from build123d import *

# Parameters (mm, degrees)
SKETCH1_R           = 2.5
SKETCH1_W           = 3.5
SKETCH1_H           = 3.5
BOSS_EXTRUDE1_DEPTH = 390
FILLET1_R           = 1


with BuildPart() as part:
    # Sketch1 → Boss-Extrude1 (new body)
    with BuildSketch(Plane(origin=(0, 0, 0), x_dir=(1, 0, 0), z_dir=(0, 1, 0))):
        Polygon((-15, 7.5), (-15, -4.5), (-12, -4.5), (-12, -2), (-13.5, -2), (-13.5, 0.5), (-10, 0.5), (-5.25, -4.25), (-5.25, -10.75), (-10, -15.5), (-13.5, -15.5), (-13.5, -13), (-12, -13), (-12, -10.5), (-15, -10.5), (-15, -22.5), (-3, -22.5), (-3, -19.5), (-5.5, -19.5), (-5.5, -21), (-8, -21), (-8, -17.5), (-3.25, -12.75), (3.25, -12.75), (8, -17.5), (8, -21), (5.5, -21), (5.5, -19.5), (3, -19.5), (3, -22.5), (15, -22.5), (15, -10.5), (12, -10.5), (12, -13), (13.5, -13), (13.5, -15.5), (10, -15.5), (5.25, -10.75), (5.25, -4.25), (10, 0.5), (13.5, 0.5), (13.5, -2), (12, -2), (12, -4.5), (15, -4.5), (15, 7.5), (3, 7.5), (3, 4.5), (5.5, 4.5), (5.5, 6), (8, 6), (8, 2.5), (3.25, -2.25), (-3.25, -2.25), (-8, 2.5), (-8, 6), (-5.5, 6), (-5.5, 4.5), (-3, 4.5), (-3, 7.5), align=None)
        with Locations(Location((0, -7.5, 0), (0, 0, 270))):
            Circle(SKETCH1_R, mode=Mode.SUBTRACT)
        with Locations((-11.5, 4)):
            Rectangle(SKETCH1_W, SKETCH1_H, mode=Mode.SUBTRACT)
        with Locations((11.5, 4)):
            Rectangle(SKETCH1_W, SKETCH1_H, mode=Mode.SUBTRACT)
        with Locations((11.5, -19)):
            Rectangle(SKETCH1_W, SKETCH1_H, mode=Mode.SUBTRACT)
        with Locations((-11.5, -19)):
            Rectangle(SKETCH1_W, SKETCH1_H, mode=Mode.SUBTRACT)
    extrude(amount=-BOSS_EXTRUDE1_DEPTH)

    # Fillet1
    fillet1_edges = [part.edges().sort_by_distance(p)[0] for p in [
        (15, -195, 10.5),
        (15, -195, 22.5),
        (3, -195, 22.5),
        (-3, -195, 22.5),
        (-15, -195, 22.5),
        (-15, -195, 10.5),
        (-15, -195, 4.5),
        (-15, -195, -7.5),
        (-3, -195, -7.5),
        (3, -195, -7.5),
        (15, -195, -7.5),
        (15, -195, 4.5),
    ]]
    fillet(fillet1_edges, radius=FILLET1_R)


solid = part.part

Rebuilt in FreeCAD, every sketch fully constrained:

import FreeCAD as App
import Part
import Sketcher


def edges_at(feature, points):
    """Names of the edges that pass closest to the given points."""
    edges = feature.Shape.Edges
    near = lambda p: min(range(len(edges)), key=lambda i: edges[i].distToShape(Part.Vertex(*p))[0])
    return sorted({f"Edge{near(p) + 1}" for p in points})

doc = App.newDocument("Part")
params = doc.addObject("Spreadsheet::Sheet", "Params")
for row, (alias, value) in enumerate([
    ("sketch1_diameter", "5 mm"),
    ("sketch1_width", "3 mm"),
    ("sketch1_width2", "12 mm"),
    ("sketch1_width3", "1.5 mm"),
    ("sketch1_width4", "3.5 mm"),
    ("pad1_length", "390 mm"),
    ("fillet_radius", "1 mm"),
], start=1):
    params.set(f"A{row}", alias)
    params.set(f"B{row}", "=" + value)
    params.setAlias(f"B{row}", alias)

body = doc.addObject("PartDesign::Body", "Body")

# Sketch on XZ plane
sketch1 = body.newObject("Sketcher::SketchObject", "Sketch")
sketch1.AttachmentSupport = (doc.getObject("XZ_Plane"), [""])
sketch1.MapMode = "FlatFace"
sketch1.addGeometry(Part.LineSegment(App.Vector(-15, -7.5, 0), App.Vector(-15, 4.5, 0)), False)
sketch1.addGeometry(Part.LineSegment(App.Vector(-15, 4.5, 0), App.Vector(-12, 4.5, 0)), False)
sketch1.addGeometry(Part.LineSegment(App.Vector(-12, 4.5, 0), App.Vector(-12, 2, 0)), False)
sketch1.addGeometry(Part.LineSegment(App.Vector(-12, 2, 0), App.Vector(-13.5, 2, 0)), False)
sketch1.addGeometry(Part.LineSegment(App.Vector(-13.5, 2, 0), App.Vector(-13.5, -0.5, 0)), False)
sketch1.addGeometry(Part.LineSegment(App.Vector(-13.5, -0.5, 0), App.Vector(-10, -0.5, 0)), False)
sketch1.addGeometry(Part.LineSegment(App.Vector(-10, -0.5, 0), App.Vector(-5.25, 4.25, 0)), False)
sketch1.addGeometry(Part.LineSegment(App.Vector(-5.25, 4.25, 0), App.Vector(-5.25, 10.75, 0)), False)
sketch1.addGeometry(Part.LineSegment(App.Vector(-5.25, 10.75, 0), App.Vector(-10, 15.5, 0)), False)
sketch1.addGeometry(Part.LineSegment(App.Vector(-10, 15.5, 0), App.Vector(-13.5, 15.5, 0)), False)
sketch1.addGeometry(Part.LineSegment(App.Vector(-13.5, 15.5, 0), App.Vector(-13.5, 13, 0)), False)
sketch1.addGeometry(Part.LineSegment(App.Vector(-13.5, 13, 0), App.Vector(-12, 13, 0)), False)
sketch1.addGeometry(Part.LineSegment(App.Vector(-12, 13, 0), App.Vector(-12, 10.5, 0)), False)
sketch1.addGeometry(Part.LineSegment(App.Vector(-12, 10.5, 0), App.Vector(-15, 10.5, 0)), False)
sketch1.addGeometry(Part.LineSegment(App.Vector(-15, 10.5, 0), App.Vector(-15, 22.5, 0)), False)
sketch1.addGeometry(Part.LineSegment(App.Vector(-15, 22.5, 0), App.Vector(-3, 22.5, 0)), False)
sketch1.addGeometry(Part.LineSegment(App.Vector(-3, 22.5, 0), App.Vector(-3, 19.5, 0)), False)
sketch1.addGeometry(Part.LineSegment(App.Vector(-3, 19.5, 0), App.Vector(-5.5, 19.5, 0)), False)
sketch1.addGeometry(Part.LineSegment(App.Vector(-5.5, 19.5, 0), App.Vector(-5.5, 21, 0)), False)
sketch1.addGeometry(Part.LineSegment(App.Vector(-5.5, 21, 0), App.Vector(-8, 21, 0)), False)
sketch1.addGeometry(Part.LineSegment(App.Vector(-8, 21, 0), App.Vector(-8, 17.5, 0)), False)
sketch1.addGeometry(Part.LineSegment(App.Vector(-8, 17.5, 0), App.Vector(-3.25, 12.75, 0)), False)
sketch1.addGeometry(Part.LineSegment(App.Vector(-3.25, 12.75, 0), App.Vector(3.25, 12.75, 0)), False)
sketch1.addGeometry(Part.LineSegment(App.Vector(3.25, 12.75, 0), App.Vector(8, 17.5, 0)), False)
sketch1.addGeometry(Part.LineSegment(App.Vector(8, 17.5, 0), App.Vector(8, 21, 0)), False)
sketch1.addGeometry(Part.LineSegment(App.Vector(8, 21, 0), App.Vector(5.5, 21, 0)), False)
sketch1.addGeometry(Part.LineSegment(App.Vector(5.5, 21, 0), App.Vector(5.5, 19.5, 0)), False)
sketch1.addGeometry(Part.LineSegment(App.Vector(5.5, 19.5, 0), App.Vector(3, 19.5, 0)), False)
sketch1.addGeometry(Part.LineSegment(App.Vector(3, 19.5, 0), App.Vector(3, 22.5, 0)), False)
sketch1.addGeometry(Part.LineSegment(App.Vector(3, 22.5, 0), App.Vector(15, 22.5, 0)), False)
sketch1.addGeometry(Part.LineSegment(App.Vector(15, 22.5, 0), App.Vector(15, 10.5, 0)), False)
sketch1.addGeometry(Part.LineSegment(App.Vector(15, 10.5, 0), App.Vector(12, 10.5, 0)), False)
sketch1.addGeometry(Part.LineSegment(App.Vector(12, 10.5, 0), App.Vector(12, 13, 0)), False)
sketch1.addGeometry(Part.LineSegment(App.Vector(12, 13, 0), App.Vector(13.5, 13, 0)), False)
sketch1.addGeometry(Part.LineSegment(App.Vector(13.5, 13, 0), App.Vector(13.5, 15.5, 0)), False)
sketch1.addGeometry(Part.LineSegment(App.Vector(13.5, 15.5, 0), App.Vector(10, 15.5, 0)), False)
sketch1.addGeometry(Part.LineSegment(App.Vector(10, 15.5, 0), App.Vector(5.25, 10.75, 0)), False)
sketch1.addGeometry(Part.LineSegment(App.Vector(5.25, 10.75, 0), App.Vector(5.25, 4.25, 0)), False)
sketch1.addGeometry(Part.LineSegment(App.Vector(5.25, 4.25, 0), App.Vector(10, -0.5, 0)), False)
sketch1.addGeometry(Part.LineSegment(App.Vector(10, -0.5, 0), App.Vector(13.5, -0.5, 0)), False)
sketch1.addGeometry(Part.LineSegment(App.Vector(13.5, -0.5, 0), App.Vector(13.5, 2, 0)), False)
sketch1.addGeometry(Part.LineSegment(App.Vector(13.5, 2, 0), App.Vector(12, 2, 0)), False)
sketch1.addGeometry(Part.LineSegment(App.Vector(12, 2, 0), App.Vector(12, 4.5, 0)), False)
sketch1.addGeometry(Part.LineSegment(App.Vector(12, 4.5, 0), App.Vector(15, 4.5, 0)), False)
sketch1.addGeometry(Part.LineSegment(App.Vector(15, 4.5, 0), App.Vector(15, -7.5, 0)), False)
sketch1.addGeometry(Part.LineSegment(App.Vector(15, -7.5, 0), App.Vector(3, -7.5, 0)), False)
sketch1.addGeometry(Part.LineSegment(App.Vector(3, -7.5, 0), App.Vector(3, -4.5, 0)), False)
sketch1.addGeometry(Part.LineSegment(App.Vector(3, -4.5, 0), App.Vector(5.5, -4.5, 0)), False)
sketch1.addGeometry(Part.LineSegment(App.Vector(5.5, -4.5, 0), App.Vector(5.5, -6, 0)), False)
sketch1.addGeometry(Part.LineSegment(App.Vector(5.5, -6, 0), App.Vector(8, -6, 0)), False)
sketch1.addGeometry(Part.LineSegment(App.Vector(8, -6, 0), App.Vector(8, -2.5, 0)), False)
sketch1.addGeometry(Part.LineSegment(App.Vector(8, -2.5, 0), App.Vector(3.25, 2.25, 0)), False)
sketch1.addGeometry(Part.LineSegment(App.Vector(3.25, 2.25, 0), App.Vector(-3.25, 2.25, 0)), False)
sketch1.addGeometry(Part.LineSegment(App.Vector(-3.25, 2.25, 0), App.Vector(-8, -2.5, 0)), False)
sketch1.addGeometry(Part.LineSegment(App.Vector(-8, -2.5, 0), App.Vector(-8, -6, 0)), False)
sketch1.addGeometry(Part.LineSegment(App.Vector(-8, -6, 0), App.Vector(-5.5, -6, 0)), False)
sketch1.addGeometry(Part.LineSegment(App.Vector(-5.5, -6, 0), App.Vector(-5.5, -4.5, 0)), False)
sketch1.addGeometry(Part.LineSegment(App.Vector(-5.5, -4.5, 0), App.Vector(-3, -4.5, 0)), False)
sketch1.addGeometry(Part.LineSegment(App.Vector(-3, -4.5, 0), App.Vector(-3, -7.5, 0)), False)
sketch1.addGeometry(Part.LineSegment(App.Vector(-3, -7.5, 0), App.Vector(-15, -7.5, 0)), False)
sketch1.addGeometry(Part.LineSegment(App.Vector(-9.75, 20.75, 0), App.Vector(-13.25, 20.75, 0)), False)
sketch1.addGeometry(Part.LineSegment(App.Vector(-13.25, 20.75, 0), App.Vector(-13.25, 17.25, 0)), False)
sketch1.addGeometry(Part.LineSegment(App.Vector(-13.25, 17.25, 0), App.Vector(-9.75, 17.25, 0)), False)
sketch1.addGeometry(Part.LineSegment(App.Vector(-9.75, 17.25, 0), App.Vector(-9.75, 20.75, 0)), False)
sketch1.addGeometry(Part.LineSegment(App.Vector(13.25, 20.75, 0), App.Vector(9.75, 20.75, 0)), False)
sketch1.addGeometry(Part.LineSegment(App.Vector(9.75, 20.75, 0), App.Vector(9.75, 17.25, 0)), False)
sketch1.addGeometry(Part.LineSegment(App.Vector(9.75, 17.25, 0), App.Vector(13.25, 17.25, 0)), False)
sketch1.addGeometry(Part.LineSegment(App.Vector(13.25, 17.25, 0), App.Vector(13.25, 20.75, 0)), False)
sketch1.addGeometry(Part.LineSegment(App.Vector(-9.75, -2.25, 0), App.Vector(-13.25, -2.25, 0)), False)
sketch1.addGeometry(Part.LineSegment(App.Vector(-13.25, -2.25, 0), App.Vector(-13.25, -5.75, 0)), False)
sketch1.addGeometry(Part.LineSegment(App.Vector(-13.25, -5.75, 0), App.Vector(-9.75, -5.75, 0)), False)
sketch1.addGeometry(Part.LineSegment(App.Vector(-9.75, -5.75, 0), App.Vector(-9.75, -2.25, 0)), False)
sketch1.addGeometry(Part.Circle(App.Vector(0, 7.5, 0), App.Vector(0, 0, 1), 2.5), False)
sketch1.addGeometry(Part.LineSegment(App.Vector(13.25, -2.25, 0), App.Vector(9.75, -2.25, 0)), False)
sketch1.addGeometry(Part.LineSegment(App.Vector(9.75, -2.25, 0), App.Vector(9.75, -5.75, 0)), False)
sketch1.addGeometry(Part.LineSegment(App.Vector(9.75, -5.75, 0), App.Vector(13.25, -5.75, 0)), False)
sketch1.addGeometry(Part.LineSegment(App.Vector(13.25, -5.75, 0), App.Vector(13.25, -2.25, 0)), False)
sketch1.addConstraint(Sketcher.Constraint("Coincident", 0, 2, 1, 1))
sketch1.addConstraint(Sketcher.Constraint("Coincident", 1, 2, 2, 1))
sketch1.addConstraint(Sketcher.Constraint("Coincident", 2, 2, 3, 1))
sketch1.addConstraint(Sketcher.Constraint("Coincident", 3, 2, 4, 1))
sketch1.addConstraint(Sketcher.Constraint("Coincident", 4, 2, 5, 1))
sketch1.addConstraint(Sketcher.Constraint("Coincident", 5, 2, 6, 1))
sketch1.addConstraint(Sketcher.Constraint("Coincident", 6, 2, 7, 1))
sketch1.addConstraint(Sketcher.Constraint("Coincident", 7, 2, 8, 1))
sketch1.addConstraint(Sketcher.Constraint("Coincident", 8, 2, 9, 1))
sketch1.addConstraint(Sketcher.Constraint("Coincident", 9, 2, 10, 1))
sketch1.addConstraint(Sketcher.Constraint("Coincident", 10, 2, 11, 1))
sketch1.addConstraint(Sketcher.Constraint("Coincident", 11, 2, 12, 1))
sketch1.addConstraint(Sketcher.Constraint("Coincident", 12, 2, 13, 1))
sketch1.addConstraint(Sketcher.Constraint("Coincident", 13, 2, 14, 1))
sketch1.addConstraint(Sketcher.Constraint("Coincident", 14, 2, 15, 1))
sketch1.addConstraint(Sketcher.Constraint("Coincident", 15, 2, 16, 1))
sketch1.addConstraint(Sketcher.Constraint("Coincident", 16, 2, 17, 1))
sketch1.addConstraint(Sketcher.Constraint("Coincident", 17, 2, 18, 1))
sketch1.addConstraint(Sketcher.Constraint("Coincident", 18, 2, 19, 1))
sketch1.addConstraint(Sketcher.Constraint("Coincident", 19, 2, 20, 1))
sketch1.addConstraint(Sketcher.Constraint("Coincident", 20, 2, 21, 1))
sketch1.addConstraint(Sketcher.Constraint("Coincident", 21, 2, 22, 1))
sketch1.addConstraint(Sketcher.Constraint("Coincident", 22, 2, 23, 1))
sketch1.addConstraint(Sketcher.Constraint("Coincident", 23, 2, 24, 1))
sketch1.addConstraint(Sketcher.Constraint("Coincident", 24, 2, 25, 1))
sketch1.addConstraint(Sketcher.Constraint("Coincident", 25, 2, 26, 1))
sketch1.addConstraint(Sketcher.Constraint("Coincident", 26, 2, 27, 1))
sketch1.addConstraint(Sketcher.Constraint("Coincident", 27, 2, 28, 1))
sketch1.addConstraint(Sketcher.Constraint("Coincident", 28, 2, 29, 1))
sketch1.addConstraint(Sketcher.Constraint("Coincident", 29, 2, 30, 1))
sketch1.addConstraint(Sketcher.Constraint("Coincident", 30, 2, 31, 1))
sketch1.addConstraint(Sketcher.Constraint("Coincident", 31, 2, 32, 1))
sketch1.addConstraint(Sketcher.Constraint("Coincident", 32, 2, 33, 1))
sketch1.addConstraint(Sketcher.Constraint("Coincident", 33, 2, 34, 1))
sketch1.addConstraint(Sketcher.Constraint("Coincident", 34, 2, 35, 1))
sketch1.addConstraint(Sketcher.Constraint("Coincident", 35, 2, 36, 1))
sketch1.addConstraint(Sketcher.Constraint("Coincident", 36, 2, 37, 1))
sketch1.addConstraint(Sketcher.Constraint("Coincident", 37, 2, 38, 1))
sketch1.addConstraint(Sketcher.Constraint("Coincident", 38, 2, 39, 1))
sketch1.addConstraint(Sketcher.Constraint("Coincident", 39, 2, 40, 1))
sketch1.addConstraint(Sketcher.Constraint("Coincident", 40, 2, 41, 1))
sketch1.addConstraint(Sketcher.Constraint("Coincident", 41, 2, 42, 1))
sketch1.addConstraint(Sketcher.Constraint("Coincident", 42, 2, 43, 1))
sketch1.addConstraint(Sketcher.Constraint("Coincident", 43, 2, 44, 1))
sketch1.addConstraint(Sketcher.Constraint("Coincident", 44, 2, 45, 1))
sketch1.addConstraint(Sketcher.Constraint("Coincident", 45, 2, 46, 1))
sketch1.addConstraint(Sketcher.Constraint("Coincident", 46, 2, 47, 1))
sketch1.addConstraint(Sketcher.Constraint("Coincident", 47, 2, 48, 1))
sketch1.addConstraint(Sketcher.Constraint("Coincident", 48, 2, 49, 1))
sketch1.addConstraint(Sketcher.Constraint("Coincident", 49, 2, 50, 1))
sketch1.addConstraint(Sketcher.Constraint("Coincident", 50, 2, 51, 1))
sketch1.addConstraint(Sketcher.Constraint("Coincident", 51, 2, 52, 1))
sketch1.addConstraint(Sketcher.Constraint("Coincident", 52, 2, 53, 1))
sketch1.addConstraint(Sketcher.Constraint("Coincident", 53, 2, 54, 1))
sketch1.addConstraint(Sketcher.Constraint("Coincident", 54, 2, 55, 1))
sketch1.addConstraint(Sketcher.Constraint("Coincident", 55, 2, 56, 1))
sketch1.addConstraint(Sketcher.Constraint("Coincident", 56, 2, 57, 1))
sketch1.addConstraint(Sketcher.Constraint("Coincident", 57, 2, 58, 1))
sketch1.addConstraint(Sketcher.Constraint("Coincident", 58, 2, 59, 1))
sketch1.addConstraint(Sketcher.Constraint("Coincident", 59, 2, 0, 1))
sketch1.addConstraint(Sketcher.Constraint("Coincident", 60, 2, 61, 1))
sketch1.addConstraint(Sketcher.Constraint("Coincident", 61, 2, 62, 1))
sketch1.addConstraint(Sketcher.Constraint("Coincident", 62, 2, 63, 1))
sketch1.addConstraint(Sketcher.Constraint("Coincident", 63, 2, 60, 1))
sketch1.addConstraint(Sketcher.Constraint("Coincident", 64, 2, 65, 1))
sketch1.addConstraint(Sketcher.Constraint("Coincident", 65, 2, 66, 1))
sketch1.addConstraint(Sketcher.Constraint("Coincident", 66, 2, 67, 1))
sketch1.addConstraint(Sketcher.Constraint("Coincident", 67, 2, 64, 1))
sketch1.addConstraint(Sketcher.Constraint("Coincident", 68, 2, 69, 1))
sketch1.addConstraint(Sketcher.Constraint("Coincident", 69, 2, 70, 1))
sketch1.addConstraint(Sketcher.Constraint("Coincident", 70, 2, 71, 1))
sketch1.addConstraint(Sketcher.Constraint("Coincident", 71, 2, 68, 1))
sketch1.addConstraint(Sketcher.Constraint("Coincident", 73, 2, 74, 1))
sketch1.addConstraint(Sketcher.Constraint("Coincident", 74, 2, 75, 1))
sketch1.addConstraint(Sketcher.Constraint("Coincident", 75, 2, 76, 1))
sketch1.addConstraint(Sketcher.Constraint("Coincident", 76, 2, 73, 1))
sketch1.addConstraint(Sketcher.Constraint("Vertical", 0))
sketch1.addConstraint(Sketcher.Constraint("Horizontal", 1))
sketch1.addConstraint(Sketcher.Constraint("Vertical", 2))
sketch1.addConstraint(Sketcher.Constraint("Horizontal", 3))
sketch1.addConstraint(Sketcher.Constraint("Vertical", 4))
sketch1.addConstraint(Sketcher.Constraint("Horizontal", 5))
sketch1.addConstraint(Sketcher.Constraint("Vertical", 7))
sketch1.addConstraint(Sketcher.Constraint("Horizontal", 9))
sketch1.addConstraint(Sketcher.Constraint("Vertical", 10))
sketch1.addConstraint(Sketcher.Constraint("Horizontal", 11))
sketch1.addConstraint(Sketcher.Constraint("Vertical", 12))
sketch1.addConstraint(Sketcher.Constraint("Horizontal", 13))
sketch1.addConstraint(Sketcher.Constraint("Vertical", 14))
sketch1.addConstraint(Sketcher.Constraint("Horizontal", 15))
sketch1.addConstraint(Sketcher.Constraint("Vertical", 16))
sketch1.addConstraint(Sketcher.Constraint("Horizontal", 17))
sketch1.addConstraint(Sketcher.Constraint("Vertical", 18))
sketch1.addConstraint(Sketcher.Constraint("Horizontal", 19))
sketch1.addConstraint(Sketcher.Constraint("Vertical", 20))
sketch1.addConstraint(Sketcher.Constraint("Horizontal", 22))
sketch1.addConstraint(Sketcher.Constraint("Vertical", 24))
sketch1.addConstraint(Sketcher.Constraint("Horizontal", 25))
sketch1.addConstraint(Sketcher.Constraint("Vertical", 26))
sketch1.addConstraint(Sketcher.Constraint("Horizontal", 27))
sketch1.addConstraint(Sketcher.Constraint("Vertical", 28))
sketch1.addConstraint(Sketcher.Constraint("Horizontal", 29))
sketch1.addConstraint(Sketcher.Constraint("Vertical", 30))
sketch1.addConstraint(Sketcher.Constraint("Horizontal", 31))
sketch1.addConstraint(Sketcher.Constraint("Vertical", 32))
sketch1.addConstraint(Sketcher.Constraint("Horizontal", 33))
sketch1.addConstraint(Sketcher.Constraint("Vertical", 34))
sketch1.addConstraint(Sketcher.Constraint("Horizontal", 35))
sketch1.addConstraint(Sketcher.Constraint("Vertical", 37))
sketch1.addConstraint(Sketcher.Constraint("Horizontal", 39))
sketch1.addConstraint(Sketcher.Constraint("Vertical", 40))
sketch1.addConstraint(Sketcher.Constraint("Horizontal", 41))
sketch1.addConstraint(Sketcher.Constraint("Vertical", 42))
sketch1.addConstraint(Sketcher.Constraint("Horizontal", 43))
sketch1.addConstraint(Sketcher.Constraint("Vertical", 44))
sketch1.addConstraint(Sketcher.Constraint("Horizontal", 45))
sketch1.addConstraint(Sketcher.Constraint("Vertical", 46))
sketch1.addConstraint(Sketcher.Constraint("Horizontal", 47))
sketch1.addConstraint(Sketcher.Constraint("Vertical", 48))
sketch1.addConstraint(Sketcher.Constraint("Horizontal", 49))
sketch1.addConstraint(Sketcher.Constraint("Vertical", 50))
sketch1.addConstraint(Sketcher.Constraint("Horizontal", 52))
sketch1.addConstraint(Sketcher.Constraint("Vertical", 54))
sketch1.addConstraint(Sketcher.Constraint("Horizontal", 55))
sketch1.addConstraint(Sketcher.Constraint("Vertical", 56))
sketch1.addConstraint(Sketcher.Constraint("Horizontal", 57))
sketch1.addConstraint(Sketcher.Constraint("Vertical", 58))
sketch1.addConstraint(Sketcher.Constraint("Horizontal", 59))
sketch1.addConstraint(Sketcher.Constraint("Horizontal", 60))
sketch1.addConstraint(Sketcher.Constraint("Vertical", 61))
sketch1.addConstraint(Sketcher.Constraint("Horizontal", 62))
sketch1.addConstraint(Sketcher.Constraint("Vertical", 63))
sketch1.addConstraint(Sketcher.Constraint("Horizontal", 64))
sketch1.addConstraint(Sketcher.Constraint("Vertical", 65))
sketch1.addConstraint(Sketcher.Constraint("Horizontal", 66))
sketch1.addConstraint(Sketcher.Constraint("Vertical", 67))
sketch1.addConstraint(Sketcher.Constraint("Horizontal", 68))
sketch1.addConstraint(Sketcher.Constraint("Vertical", 69))
sketch1.addConstraint(Sketcher.Constraint("Horizontal", 70))
sketch1.addConstraint(Sketcher.Constraint("Vertical", 71))
sketch1.addConstraint(Sketcher.Constraint("Horizontal", 73))
sketch1.addConstraint(Sketcher.Constraint("Vertical", 74))
sketch1.addConstraint(Sketcher.Constraint("Horizontal", 75))
sketch1.addConstraint(Sketcher.Constraint("Vertical", 76))
sketch1.addConstraint(Sketcher.Constraint("Symmetric", 20, 2, 23, 2, -2))
sketch1.addConstraint(Sketcher.Constraint("Symmetric", 18, 2, 25, 2, -2))
sketch1.addConstraint(Sketcher.Constraint("Symmetric", 16, 2, 27, 2, -2))
sketch1.addConstraint(Sketcher.Constraint("Symmetric", 14, 2, 29, 2, -2))
sketch1.addConstraint(Sketcher.Constraint("Symmetric", 12, 2, 31, 2, -2))
sketch1.addConstraint(Sketcher.Constraint("Symmetric", 10, 2, 33, 2, -2))
sketch1.addConstraint(Sketcher.Constraint("Symmetric", 8, 2, 35, 2, -2))
sketch1.addConstraint(Sketcher.Constraint("Symmetric", 7, 2, 36, 2, -2))
sketch1.addConstraint(Sketcher.Constraint("Symmetric", 5, 2, 38, 2, -2))
sketch1.addConstraint(Sketcher.Constraint("Symmetric", 3, 2, 40, 2, -2))
sketch1.addConstraint(Sketcher.Constraint("Symmetric", 1, 2, 42, 2, -2))
sketch1.addConstraint(Sketcher.Constraint("Symmetric", 50, 2, 53, 2, -2))
sketch1.addConstraint(Sketcher.Constraint("Symmetric", 48, 2, 55, 2, -2))
sketch1.addConstraint(Sketcher.Constraint("Symmetric", 46, 2, 57, 2, -2))
sketch1.addConstraint(Sketcher.Constraint("Symmetric", 44, 2, 59, 2, -2))
sketch1.addConstraint(Sketcher.Constraint("Symmetric", 63, 2, 64, 2, -2))
sketch1.addConstraint(Sketcher.Constraint("Symmetric", 61, 2, 66, 2, -2))
sketch1.addConstraint(Sketcher.Constraint("Symmetric", 71, 2, 73, 2, -2))
sketch1.addConstraint(Sketcher.Constraint("Symmetric", 69, 2, 75, 2, -2))
sketch1.addConstraint(Sketcher.Constraint("PointOnObject", 72, 3, -2))
sketch1.addConstraint(Sketcher.Constraint("Perpendicular", 6, 8))
sketch1.addConstraint(Sketcher.Constraint("Parallel", 8, 21))
sketch1.addConstraint(Sketcher.Constraint("Perpendicular", 21, 23))
sketch1.addConstraint(Sketcher.Constraint("Parallel", 23, 36))
sketch1.addConstraint(Sketcher.Constraint("Perpendicular", 36, 38))
sketch1.addConstraint(Sketcher.Constraint("Parallel", 38, 51))
sketch1.addConstraint(Sketcher.Constraint("Perpendicular", 51, 53))
sketch1.addConstraint(Sketcher.Constraint("Vertical", 5, 2, 8, 2))
sketch1.addConstraint(Sketcher.Constraint("Vertical", 4, 2, 9, 2))
sketch1.addConstraint(Sketcher.Constraint("Vertical", 2, 2, 11, 2))
sketch1.addConstraint(Sketcher.Constraint("Vertical", 0, 2, 13, 2))
sketch1.addConstraint(Sketcher.Constraint("Vertical", 28, 2, 45, 2))
sketch1.addConstraint(Sketcher.Constraint("Vertical", 26, 2, 47, 2))
sketch1.addConstraint(Sketcher.Constraint("Vertical", 24, 2, 49, 2))
sketch1.addConstraint(Sketcher.Constraint("Vertical", 22, 2, 51, 2))
sketch1.addConstraint(Sketcher.Constraint("Vertical", 61, 2, 68, 2))
sketch1.addConstraint(Sketcher.Constraint("Vertical", 63, 2, 70, 2))
sketch1.addConstraint(Sketcher.Constraint("Equal", 17, 19))
sketch1.addConstraint(Sketcher.Constraint("Equal", 39, 60))
sketch1.addConstraint(Sketcher.Constraint("Equal", 59, 0))
sketch1.addConstraint(Sketcher.Constraint("Equal", 57, 2))
sketch1.addConstraint(Sketcher.Constraint("Equal", 2, 4))
sketch1.addConstraint(Sketcher.Constraint("Equal", 52, 7))
sketch1.addConstraint(Sketcher.Constraint("Equal", 4, 10))
sketch1.addConstraint(Sketcher.Constraint("Equal", 10, 12))
sketch1.addConstraint(Sketcher.Constraint("Equal", 0, 14))
sketch1.addConstraint(Sketcher.Constraint("Equal", 43, 16))
sketch1.addConstraint(Sketcher.Constraint("Equal", 41, 18))
sketch1.addConstraint(Sketcher.Constraint("Equal", 75, 20))
sketch1.addConstraint(Sketcher.Constraint("Equal", 28, 46))
sketch1.addConstraint(Sketcher.Constraint("Equal", 26, 48))
sketch1.addConstraint(Sketcher.Constraint("Equal", 24, 50))
sketch1.addConstraint(Sketcher.Constraint("Equal", 54, 61))
sketch1.addConstraint(Sketcher.Constraint("Equal", 67, 69))
sketch1.addConstraint(Sketcher.Constraint("Equal", 8, 21))
sketch1.addConstraint(Sketcher.Constraint("Diameter", 72, 5.0))
sketch1.addConstraint(Sketcher.Constraint("DistanceX", 1, 1, 1, 2, 3.0))
sketch1.addConstraint(Sketcher.Constraint("DistanceX", 15, 1, 15, 2, 12.0))
sketch1.addConstraint(Sketcher.Constraint("DistanceX", 3, 2, 3, 1, 1.5))
sketch1.addConstraint(Sketcher.Constraint("DistanceX", 5, 1, 5, 2, 3.5))
sketch1.addConstraint(Sketcher.Constraint("DistanceX", 17, 2, 17, 1, 2.5))
sketch1.addConstraint(Sketcher.Constraint("DistanceX", 22, 1, 22, 2, 6.5))
sketch1.addConstraint(Sketcher.Constraint("DistanceX", 0, 2, -1, 1, 15.0))
sketch1.addConstraint(Sketcher.Constraint("DistanceY", -1, 1, 2, 2, 2.0))
sketch1.addConstraint(Sketcher.Constraint("DistanceY", -1, 1, 72, 3, 7.5))
sketch1.addConstraint(Sketcher.Constraint("DistanceX", 60, 2, -1, 1, 13.25))
sketch1.addConstraint(Sketcher.Constraint("DistanceY", -1, 1, 60, 2, 20.75))
sketch1.addConstraint(Sketcher.Constraint("DistanceY", 68, 2, -1, 1, 2.25))
sketch1.setExpression("Constraints[199]", "Params.sketch1_diameter")
sketch1.setExpression("Constraints[200]", "Params.sketch1_width")
sketch1.setExpression("Constraints[201]", "Params.sketch1_width2")
sketch1.setExpression("Constraints[202]", "Params.sketch1_width3")
sketch1.setExpression("Constraints[203]", "Params.sketch1_width4")
pad1 = body.newObject("PartDesign::Pad", "Pad")
pad1.Profile = sketch1
pad1.setExpression("Length", "Params.pad1_length")
doc.recompute()

fillet = body.newObject("PartDesign::Fillet", "Fillet")
fillet.Base = (pad1, edges_at(pad1, [
    (15, -195, 10.5),
    (15, -195, 22.5),
    (3, -195, 22.5),
    (-3, -195, 22.5),
    (-15, -195, 22.5),
    (-15, -195, 10.5),
    (-15, -195, 4.5),
    (-15, -195, -7.5),
    (-3, -195, -7.5),
    (3, -195, -7.5),
    (15, -195, -7.5),
    (15, -195, 4.5),
]))
fillet.setExpression("Radius", "Params.fillet_radius")

doc.recompute()
